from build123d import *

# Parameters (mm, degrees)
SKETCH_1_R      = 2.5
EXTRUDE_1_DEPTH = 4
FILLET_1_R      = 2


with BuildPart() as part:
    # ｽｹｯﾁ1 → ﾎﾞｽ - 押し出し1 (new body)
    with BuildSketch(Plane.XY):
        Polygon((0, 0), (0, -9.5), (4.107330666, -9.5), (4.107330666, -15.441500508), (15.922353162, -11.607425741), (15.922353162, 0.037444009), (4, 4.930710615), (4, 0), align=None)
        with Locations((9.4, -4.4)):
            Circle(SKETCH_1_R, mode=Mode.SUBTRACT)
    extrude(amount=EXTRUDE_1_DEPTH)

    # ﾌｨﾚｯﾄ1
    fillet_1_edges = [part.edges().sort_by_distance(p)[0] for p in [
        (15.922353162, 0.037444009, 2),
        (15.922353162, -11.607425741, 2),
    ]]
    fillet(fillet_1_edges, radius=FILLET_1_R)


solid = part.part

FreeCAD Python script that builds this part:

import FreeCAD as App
import Part
import Sketcher


def edges_at(feature, points):
    """Names of the edges that pass closest to the given points."""
    edges = feature.Shape.Edges
    near = lambda p: min(range(len(edges)), key=lambda i: edges[i].distToShape(Part.Vertex(*p))[0])
    return sorted({f"Edge{near(p) + 1}" for p in points})


def add_polygon(sketch, points):
    """Adds a closed chain of lines whose ends are joined by coincident constraints."""
    first, n = sketch.GeometryCount, len(points)
    for a, b in zip(points, points[1:] + points[:1]):
        sketch.addGeometry(Part.LineSegment(App.Vector(*a, 0), App.Vector(*b, 0)), False)
    for i in range(n):
        sketch.addConstraint(Sketcher.Constraint("Coincident", first + i, 2, first + (i + 1) % n, 1))

doc = App.newDocument("Part")
body = doc.addObject("PartDesign::Body", "Body")

# Sketch on XY plane
sketch1 = body.newObject("Sketcher::SketchObject", "Sketch")
sketch1.AttachmentSupport = (doc.getObject("XY_Plane"), [""])
sketch1.MapMode = "FlatFace"
add_polygon(sketch1, [(0, 0), (0, -9.5), (4.1, -9.5), (4.1, -15.4), (15.9, -11.6), (15.9, 0), (4, 4.9), (4, 0)])  # lines 0-7
sketch1.addGeometry(Part.Circle(App.Vector(9.4, -4.4, 0), App.Vector(0, 0, 1), 2.5), False)  # 8
sketch1.addConstraint([
    Sketcher.Constraint("Vertical", 0),
    Sketcher.Constraint("Horizontal", 1),
    Sketcher.Constraint("Vertical", 2),
    Sketcher.Constraint("Vertical", 4),
    Sketcher.Constraint("Vertical", 6),
    Sketcher.Constraint("Horizontal", 7),
    Sketcher.Constraint("Coincident", 7, 2, -1, 1),
    Sketcher.Constraint("Diameter", 8, 5.0),
    Sketcher.Constraint("DistanceX", 7, 2, 7, 1, 4.0),
    Sketcher.Constraint("DistanceY", 0, 2, 0, 1, 9.5),
    Sketcher.Constraint("DistanceX", -1, 1, 8, 3, 9.4),
    Sketcher.Constraint("DistanceY", 8, 3, -1, 1, 4.4),
    Sketcher.Constraint("DistanceY", 2, 2, 2, 1, 5.941501),
    Sketcher.Constraint("DistanceX", 1, 1, 1, 2, 4.107331),
    Sketcher.Constraint("DistanceY", 4, 1, 4, 2, 11.64487),
    Sketcher.Constraint("DistanceY", 6, 2, 6, 1, 4.930711),
    Sketcher.Constraint("Distance", 3, 12.421549),
    Sketcher.Constraint("Distance", 5, 12.887458),
])
pad1 = body.newObject("PartDesign::Pad", "Pad")
pad1.Profile = sketch1
pad1.Length = 4
doc.recompute()

fillet = body.newObject("PartDesign::Fillet", "Fillet")
fillet.Base = (pad1, edges_at(pad1, [(15.922, 0.037, 2), (15.922, -11.607, 2)]))
fillet.Radius = 2

doc.recompute()
